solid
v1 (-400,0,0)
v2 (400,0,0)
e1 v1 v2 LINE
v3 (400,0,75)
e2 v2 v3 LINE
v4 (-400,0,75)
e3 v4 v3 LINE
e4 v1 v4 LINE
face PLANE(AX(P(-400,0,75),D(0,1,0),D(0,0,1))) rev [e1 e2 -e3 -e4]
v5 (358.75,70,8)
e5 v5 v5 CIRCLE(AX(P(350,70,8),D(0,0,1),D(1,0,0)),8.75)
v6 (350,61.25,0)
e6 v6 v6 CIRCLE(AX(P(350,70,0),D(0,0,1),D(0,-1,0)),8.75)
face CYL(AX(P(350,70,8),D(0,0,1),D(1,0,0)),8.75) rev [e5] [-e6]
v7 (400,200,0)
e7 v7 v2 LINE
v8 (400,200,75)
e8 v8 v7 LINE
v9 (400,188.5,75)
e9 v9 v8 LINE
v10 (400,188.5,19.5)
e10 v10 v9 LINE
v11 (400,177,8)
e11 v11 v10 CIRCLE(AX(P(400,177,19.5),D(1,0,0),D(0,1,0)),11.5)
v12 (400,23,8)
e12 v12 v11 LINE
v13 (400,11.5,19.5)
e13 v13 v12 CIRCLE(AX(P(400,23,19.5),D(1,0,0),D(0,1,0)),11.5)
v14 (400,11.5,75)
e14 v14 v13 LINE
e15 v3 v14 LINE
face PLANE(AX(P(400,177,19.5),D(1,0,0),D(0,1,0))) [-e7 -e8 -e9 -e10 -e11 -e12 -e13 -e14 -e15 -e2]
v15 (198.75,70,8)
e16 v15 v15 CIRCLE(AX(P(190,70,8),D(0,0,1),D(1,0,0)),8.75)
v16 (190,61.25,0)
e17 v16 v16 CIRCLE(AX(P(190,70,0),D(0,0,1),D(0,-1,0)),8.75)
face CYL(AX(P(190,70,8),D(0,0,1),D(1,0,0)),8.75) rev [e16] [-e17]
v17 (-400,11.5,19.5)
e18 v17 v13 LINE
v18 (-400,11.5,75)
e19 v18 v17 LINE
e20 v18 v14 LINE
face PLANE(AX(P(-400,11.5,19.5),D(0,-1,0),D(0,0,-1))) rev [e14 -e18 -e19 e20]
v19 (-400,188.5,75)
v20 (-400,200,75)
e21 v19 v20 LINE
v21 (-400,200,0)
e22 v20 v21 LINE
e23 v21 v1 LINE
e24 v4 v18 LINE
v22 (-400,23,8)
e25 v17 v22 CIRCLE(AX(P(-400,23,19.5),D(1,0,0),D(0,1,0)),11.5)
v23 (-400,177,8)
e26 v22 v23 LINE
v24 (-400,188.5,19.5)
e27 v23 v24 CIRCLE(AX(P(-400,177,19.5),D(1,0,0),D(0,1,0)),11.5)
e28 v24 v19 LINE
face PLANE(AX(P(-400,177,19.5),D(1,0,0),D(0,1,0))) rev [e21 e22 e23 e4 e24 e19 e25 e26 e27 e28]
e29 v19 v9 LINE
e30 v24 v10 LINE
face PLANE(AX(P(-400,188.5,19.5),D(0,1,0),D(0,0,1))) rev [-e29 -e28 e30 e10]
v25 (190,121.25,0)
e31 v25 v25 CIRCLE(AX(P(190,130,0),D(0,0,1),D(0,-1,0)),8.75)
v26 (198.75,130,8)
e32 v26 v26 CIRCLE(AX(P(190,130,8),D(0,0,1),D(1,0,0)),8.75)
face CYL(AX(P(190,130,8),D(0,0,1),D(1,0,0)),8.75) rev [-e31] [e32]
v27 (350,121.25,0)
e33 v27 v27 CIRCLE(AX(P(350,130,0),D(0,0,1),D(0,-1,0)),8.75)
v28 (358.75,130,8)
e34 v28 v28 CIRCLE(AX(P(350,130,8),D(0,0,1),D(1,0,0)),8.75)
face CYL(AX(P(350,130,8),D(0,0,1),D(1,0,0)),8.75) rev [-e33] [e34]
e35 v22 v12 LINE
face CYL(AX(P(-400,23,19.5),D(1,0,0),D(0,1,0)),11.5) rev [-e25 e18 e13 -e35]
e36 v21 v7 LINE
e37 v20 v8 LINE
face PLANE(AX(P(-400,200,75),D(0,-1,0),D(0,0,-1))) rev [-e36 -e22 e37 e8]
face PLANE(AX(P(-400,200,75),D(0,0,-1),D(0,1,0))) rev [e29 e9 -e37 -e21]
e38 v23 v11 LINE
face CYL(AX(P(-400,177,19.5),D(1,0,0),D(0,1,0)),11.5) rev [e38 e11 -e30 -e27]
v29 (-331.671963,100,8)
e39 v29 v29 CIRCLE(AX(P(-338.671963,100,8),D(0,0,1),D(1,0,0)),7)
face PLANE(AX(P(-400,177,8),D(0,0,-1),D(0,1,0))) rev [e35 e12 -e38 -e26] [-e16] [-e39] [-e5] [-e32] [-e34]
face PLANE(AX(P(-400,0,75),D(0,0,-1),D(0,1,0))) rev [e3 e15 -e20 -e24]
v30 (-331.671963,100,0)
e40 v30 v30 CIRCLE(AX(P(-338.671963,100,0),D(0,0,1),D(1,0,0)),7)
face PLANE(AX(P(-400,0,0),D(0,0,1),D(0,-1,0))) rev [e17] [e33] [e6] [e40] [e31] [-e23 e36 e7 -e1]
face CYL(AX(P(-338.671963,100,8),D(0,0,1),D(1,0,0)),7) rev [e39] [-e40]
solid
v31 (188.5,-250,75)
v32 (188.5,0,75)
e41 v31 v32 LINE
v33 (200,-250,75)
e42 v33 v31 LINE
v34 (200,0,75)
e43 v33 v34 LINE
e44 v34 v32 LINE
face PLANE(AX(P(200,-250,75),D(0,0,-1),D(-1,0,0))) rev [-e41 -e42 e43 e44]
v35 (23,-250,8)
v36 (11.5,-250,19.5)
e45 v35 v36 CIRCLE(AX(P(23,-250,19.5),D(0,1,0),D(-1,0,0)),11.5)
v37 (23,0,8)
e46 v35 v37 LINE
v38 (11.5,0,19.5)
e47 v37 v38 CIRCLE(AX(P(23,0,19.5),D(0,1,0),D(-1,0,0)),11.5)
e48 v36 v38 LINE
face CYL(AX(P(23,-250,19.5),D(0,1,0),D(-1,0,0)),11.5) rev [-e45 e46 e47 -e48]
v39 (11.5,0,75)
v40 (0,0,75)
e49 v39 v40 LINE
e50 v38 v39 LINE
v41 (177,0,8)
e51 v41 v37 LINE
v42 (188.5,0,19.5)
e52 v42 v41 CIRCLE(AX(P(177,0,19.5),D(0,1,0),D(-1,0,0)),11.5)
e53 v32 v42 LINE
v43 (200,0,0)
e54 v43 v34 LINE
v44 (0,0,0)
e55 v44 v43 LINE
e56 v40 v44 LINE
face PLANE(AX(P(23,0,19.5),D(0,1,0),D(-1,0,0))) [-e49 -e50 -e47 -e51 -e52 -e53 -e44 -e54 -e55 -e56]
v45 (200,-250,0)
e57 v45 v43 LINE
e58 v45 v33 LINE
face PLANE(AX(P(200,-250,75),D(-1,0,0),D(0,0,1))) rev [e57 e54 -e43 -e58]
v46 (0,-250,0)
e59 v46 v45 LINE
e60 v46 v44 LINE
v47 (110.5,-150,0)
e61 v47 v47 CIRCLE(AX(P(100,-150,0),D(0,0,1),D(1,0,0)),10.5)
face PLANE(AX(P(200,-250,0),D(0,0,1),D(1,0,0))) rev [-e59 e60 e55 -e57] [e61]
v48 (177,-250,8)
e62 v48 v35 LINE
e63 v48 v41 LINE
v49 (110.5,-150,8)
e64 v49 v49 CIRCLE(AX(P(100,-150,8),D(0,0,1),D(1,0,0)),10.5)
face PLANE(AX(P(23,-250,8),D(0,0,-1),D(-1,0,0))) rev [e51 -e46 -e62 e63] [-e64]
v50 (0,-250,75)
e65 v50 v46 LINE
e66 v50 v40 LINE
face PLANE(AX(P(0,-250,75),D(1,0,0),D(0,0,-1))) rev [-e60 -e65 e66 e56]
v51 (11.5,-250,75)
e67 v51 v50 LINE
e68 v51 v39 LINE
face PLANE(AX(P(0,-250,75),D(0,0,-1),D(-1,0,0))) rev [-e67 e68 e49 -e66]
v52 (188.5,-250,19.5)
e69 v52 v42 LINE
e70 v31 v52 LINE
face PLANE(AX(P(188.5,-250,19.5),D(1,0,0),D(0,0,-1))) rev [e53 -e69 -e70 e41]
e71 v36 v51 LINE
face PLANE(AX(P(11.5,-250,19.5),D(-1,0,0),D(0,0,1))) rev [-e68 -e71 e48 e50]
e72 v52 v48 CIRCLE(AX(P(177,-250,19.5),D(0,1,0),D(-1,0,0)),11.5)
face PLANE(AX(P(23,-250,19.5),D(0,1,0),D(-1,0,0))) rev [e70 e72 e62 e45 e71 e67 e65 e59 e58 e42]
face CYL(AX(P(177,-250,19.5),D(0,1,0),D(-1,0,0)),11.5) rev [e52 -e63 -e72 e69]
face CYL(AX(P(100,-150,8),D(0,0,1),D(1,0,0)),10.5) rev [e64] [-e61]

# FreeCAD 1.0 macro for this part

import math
import FreeCAD as App
import Part
import Sketcher
from FreeCAD import Vector
Q = App.Units.Quantity


def add_polygon(sketch, points):
    """Adds a closed chain of lines whose ends are joined by coincident constraints."""
    first, n = sketch.GeometryCount, len(points)
    for a, b in zip(points, points[1:] + points[:1]):
        sketch.addGeometry(Part.LineSegment(App.Vector(*a, 0), App.Vector(*b, 0)), False)
    for i in range(n):
        sketch.addConstraint(Sketcher.Constraint("Coincident", first + i, 2, first + (i + 1) % n, 1))

doc = App.newDocument("Part")
body = doc.addObject("PartDesign::Body", "Body")

# Sketch on YZ plane
sketch1 = body.newObject("Sketcher::SketchObject", "Sketch")
sketch1.AttachmentSupport = (doc.getObject("YZ_Plane"), [""])
sketch1.MapMode = "FlatFace"
sketch1.AttachmentOffset = App.Placement(Vector(0, 0, 400), App.Rotation())
sketch1.addGeometry(Part.LineSegment(Vector(200, 0, 0), Vector(0, 0, 0)), False)
sketch1.addGeometry(Part.LineSegment(Vector(0, 0, 0), Vector(0, 75, 0)), False)
sketch1.addGeometry(Part.LineSegment(Vector(0, 75, 0), Vector(12, 75, 0)), False)
sketch1.addGeometry(Part.LineSegment(Vector(12, 75, 0), Vector(12, 20, 0)), False)
sketch1.addGeometry(Part.ArcOfCircle(Part.Circle(Vector(23, 19, 0), Vector(0, 0, 1), 11), math.radians(180), math.radians(270)), False)
sketch1.addGeometry(Part.LineSegment(Vector(23, 8, 0), Vector(177, 8, 0)), False)
sketch1.addGeometry(Part.ArcOfCircle(Part.Circle(Vector(177, 19, 0), Vector(0, 0, 1), 11), math.radians(-90), math.radians(0)), False)
sketch1.addGeometry(Part.LineSegment(Vector(188, 20, 0), Vector(188, 75, 0)), False)
sketch1.addGeometry(Part.LineSegment(Vector(188, 75, 0), Vector(200, 75, 0)), False)
sketch1.addGeometry(Part.LineSegment(Vector(200, 75, 0), Vector(200, 0, 0)), False)
sketch1.addConstraint(Sketcher.Constraint("Coincident", 0, 2, 1, 1))
sketch1.addConstraint(Sketcher.Constraint("Coincident", 1, 2, 2, 1))
sketch1.addConstraint(Sketcher.Constraint("Coincident", 2, 2, 3, 1))
sketch1.addConstraint(Sketcher.Constraint("Tangent", 3, 2, 4, 1))
sketch1.addConstraint(Sketcher.Constraint("Tangent", 4, 2, 5, 1))
sketch1.addConstraint(Sketcher.Constraint("Tangent", 5, 2, 6, 1))
sketch1.addConstraint(Sketcher.Constraint("Tangent", 6, 2, 7, 1))
sketch1.addConstraint(Sketcher.Constraint("Coincident", 7, 2, 8, 1))
sketch1.addConstraint(Sketcher.Constraint("Coincident", 8, 2, 9, 1))
sketch1.addConstraint(Sketcher.Constraint("Coincident", 9, 2, 0, 1))
sketch1.addConstraint(Sketcher.Constraint("Horizontal", 0))
sketch1.addConstraint(Sketcher.Constraint("Vertical", 1))
sketch1.addConstraint(Sketcher.Constraint("Horizontal", 2))
sketch1.addConstraint(Sketcher.Constraint("Vertical", 3))
sketch1.addConstraint(Sketcher.Constraint("Horizontal", 5))
sketch1.addConstraint(Sketcher.Constraint("Vertical", 7))
sketch1.addConstraint(Sketcher.Constraint("Horizontal", 8))
sketch1.addConstraint(Sketcher.Constraint("Vertical", 9))
sketch1.addConstraint(Sketcher.Constraint("Coincident", 0, 2, -1, 1))
sketch1.addConstraint(Sketcher.Constraint("Equal", 4, 6))
sketch1.addConstraint(Sketcher.Constraint("Horizontal", 2, 2, 7, 2))
sketch1.addConstraint(Sketcher.Constraint("Equal", 2, 8))
sketch1.addConstraint(Sketcher.Constraint("Radius", 4, 11.5))
sketch1.addConstraint(Sketcher.Constraint("DistanceX", 0, 2, 0, 1, 200.0))
sketch1.addConstraint(Sketcher.Constraint("DistanceX", 5, 1, 5, 2, 154.0))
sketch1.addConstraint(Sketcher.Constraint("DistanceY", 1, 1, 1, 2, 75.0))
sketch1.addConstraint(Sketcher.Constraint("DistanceY", 3, 2, 3, 1, 55.5))
pad1 = body.newObject("PartDesign::Pad", "Pad")
pad1.Profile = sketch1
pad1.Length = 800
pad1.Reversed = True

# Sketch on YZ plane
sketch2 = body.newObject("Sketcher::SketchObject", "Sketch001")
sketch2.AttachmentSupport = (doc.getObject("YZ_Plane"), [""])
sketch2.MapMode = "FlatFace"
sketch2.AttachmentOffset = App.Placement(Vector(0, 0, -338.671963), App.Rotation())
add_polygon(sketch2, [(100, 0), (100, 8), (93, 8), (93, 0)])  # lines 0-3
sketch2.addGeometry(Part.LineSegment(Vector(100, 8, 0), Vector(100, 0, 0)), True)  # axis
sketch2.addConstraint(Sketcher.Constraint("Vertical", 0))
sketch2.addConstraint(Sketcher.Constraint("Horizontal", 1))
sketch2.addConstraint(Sketcher.Constraint("Vertical", 2))
sketch2.addConstraint(Sketcher.Constraint("Horizontal", 3))
sketch2.addConstraint(Sketcher.Constraint("Vertical", 4))
sketch2.addConstraint(Sketcher.Constraint("Coincident", 4, 1, 0, 2))
sketch2.addConstraint(Sketcher.Constraint("PointOnObject", 2, 2, -1))
sketch2.addConstraint(Sketcher.Constraint("PointOnObject", 4, 2, -1))
sketch2.addConstraint(Sketcher.Constraint("DistanceX", 1, 2, 1, 1, 7.0))
sketch2.addConstraint(Sketcher.Constraint("DistanceY", 0, 1, 0, 2, 8.0))
sketch2.addConstraint(Sketcher.Constraint("DistanceX", -1, 1, 0, 2, 100.0))
groove = body.newObject("PartDesign::Groove", "Groove")
groove.Profile = sketch2
groove.ReferenceAxis = (sketch2, ["Axis0"])
groove.Angle = 360

# Sketch on YZ plane
sketch3 = body.newObject("Sketcher::SketchObject", "Sketch002")
sketch3.AttachmentSupport = (doc.getObject("YZ_Plane"), [""])
sketch3.MapMode = "FlatFace"
sketch3.AttachmentOffset = App.Placement(Vector(0, 0, 190), App.Rotation())
add_polygon(sketch3, [(130, -45), (130, 8), (121, 8), (121, -40)])  # lines 0-3
sketch3.addGeometry(Part.LineSegment(Vector(130, 8, 0), Vector(130, -45, 0)), True)  # axis
sketch3.addConstraint(Sketcher.Constraint("Vertical", 0))
sketch3.addConstraint(Sketcher.Constraint("Horizontal", 1))
sketch3.addConstraint(Sketcher.Constraint("Vertical", 2))
sketch3.addConstraint(Sketcher.Constraint("Vertical", 4))
sketch3.addConstraint(Sketcher.Constraint("Coincident", 4, 1, 0, 2))
sketch3.addConstraint(Sketcher.Constraint("Equal", 0, 4))
sketch3.addConstraint(Sketcher.Constraint("Angle", 3, Q("-31 deg")))
sketch3.addConstraint(Sketcher.Constraint("DistanceY", 2, 2, 2, 1, 47.5))
sketch3.addConstraint(Sketcher.Constraint("DistanceX", -1, 1, 0, 2, 130.0))
sketch3.addConstraint(Sketcher.Constraint("DistanceY", -1, 1, 0, 2, 8.0))
sketch3.addConstraint(Sketcher.Constraint("DistanceX", 1, 2, 1, 1, 8.75))
groove2 = body.newObject("PartDesign::Groove", "Groove001")
groove2.Profile = sketch3
groove2.ReferenceAxis = (sketch3, ["Axis0"])
groove2.Angle = 360
doc.recompute()

linearpattern = body.newObject("PartDesign::LinearPattern", "LinearPattern")
linearpattern.Originals = [groove2]
linearpattern.Direction = (doc.getObject("X_Axis"), [""])
linearpattern.Mode = "offset"
linearpattern.Offset = 160
linearpattern.Occurrences = 2
body.Tip = linearpattern
doc.recompute()

datumline = body.newObject("PartDesign::Line", "DatumLine")
datumline.Placement = App.Placement(Vector(0, 0, 0), App.Rotation(Vector(0, 0, 1), Vector(0.936329178, -0.351123442, 0)))
linearpattern2 = body.newObject("PartDesign::LinearPattern", "LinearPattern001")
linearpattern2.Originals = [groove2]
linearpattern2.Direction = (datumline, [""])
linearpattern2.Mode = "offset"
linearpattern2.Offset = 170.880075
linearpattern2.Occurrences = 2
body.Tip = linearpattern2
doc.recompute()

linearpattern3 = body.newObject("PartDesign::LinearPattern", "LinearPattern002")
linearpattern3.Originals = [groove2]
linearpattern3.Direction = (doc.getObject("Y_Axis"), [""])
linearpattern3.Mode = "offset"
linearpattern3.Offset = 60
linearpattern3.Occurrences = 2
linearpattern3.Reversed = True
body.Tip = linearpattern3
body2 = doc.addObject("PartDesign::Body", "Body001")

# Sketch on XZ plane
sketch4 = body2.newObject("Sketcher::SketchObject", "Sketch003")
sketch4.AttachmentSupport = (doc.getObject("XZ_Plane001"), [""])
sketch4.MapMode = "FlatFace"
sketch4.addGeometry(Part.LineSegment(Vector(0, 0, 0), Vector(200, 0, 0)), False)
sketch4.addGeometry(Part.LineSegment(Vector(200, 0, 0), Vector(200, 75, 0)), False)
sketch4.addGeometry(Part.LineSegment(Vector(200, 75, 0), Vector(188, 75, 0)), False)
sketch4.addGeometry(Part.LineSegment(Vector(188, 75, 0), Vector(188, 20, 0)), False)
sketch4.addGeometry(Part.ArcOfCircle(Part.Circle(Vector(177, 19, 0), Vector(0, 0, 1), 11), math.radians(-90), math.radians(0)), False)
sketch4.addGeometry(Part.LineSegment(Vector(177, 8, 0), Vector(23, 8, 0)), False)
sketch4.addGeometry(Part.ArcOfCircle(Part.Circle(Vector(23, 19, 0), Vector(0, 0, 1), 11), math.radians(180), math.radians(270)), False)
sketch4.addGeometry(Part.LineSegment(Vector(12, 20, 0), Vector(12, 75, 0)), False)
sketch4.addGeometry(Part.LineSegment(Vector(12, 75, 0), Vector(0, 75, 0)), False)
sketch4.addGeometry(Part.LineSegment(Vector(0, 75, 0), Vector(0, 0, 0)), False)
sketch4.addConstraint(Sketcher.Constraint("Coincident", 0, 2, 1, 1))
sketch4.addConstraint(Sketcher.Constraint("Coincident", 1, 2, 2, 1))
sketch4.addConstraint(Sketcher.Constraint("Coincident", 2, 2, 3, 1))
sketch4.addConstraint(Sketcher.Constraint("Tangent", 3, 2, 4, 2))
sketch4.addConstraint(Sketcher.Constraint("Tangent", 4, 1, 5, 1))
sketch4.addConstraint(Sketcher.Constraint("Tangent", 5, 2, 6, 2))
sketch4.addConstraint(Sketcher.Constraint("Tangent", 6, 1, 7, 1))
sketch4.addConstraint(Sketcher.Constraint("Coincident", 7, 2, 8, 1))
sketch4.addConstraint(Sketcher.Constraint("Coincident", 8, 2, 9, 1))
sketch4.addConstraint(Sketcher.Constraint("Coincident", 9, 2, 0, 1))
sketch4.addConstraint(Sketcher.Constraint("Horizontal", 0))
sketch4.addConstraint(Sketcher.Constraint("Vertical", 1))
sketch4.addConstraint(Sketcher.Constraint("Horizontal", 2))
sketch4.addConstraint(Sketcher.Constraint("Vertical", 3))
sketch4.addConstraint(Sketcher.Constraint("Horizontal", 5))
sketch4.addConstraint(Sketcher.Constraint("Vertical", 7))
sketch4.addConstraint(Sketcher.Constraint("Horizontal", 8))
sketch4.addConstraint(Sketcher.Constraint("Vertical", 9))
sketch4.addConstraint(Sketcher.Constraint("Coincident", 9, 2, -1, 1))
sketch4.addConstraint(Sketcher.Constraint("Equal", 4, 6))
sketch4.addConstraint(Sketcher.Constraint("Horizontal", 2, 2, 7, 2))
sketch4.addConstraint(Sketcher.Constraint("Equal", 2, 8))
sketch4.addConstraint(Sketcher.Constraint("Radius", 4, 11.5))
sketch4.addConstraint(Sketcher.Constraint("DistanceX", 0, 1, 0, 2, 200.0))
sketch4.addConstraint(Sketcher.Constraint("DistanceX", 5, 2, 5, 1, 154.0))
sketch4.addConstraint(Sketcher.Constraint("DistanceY", 1, 1, 1, 2, 75.0))
sketch4.addConstraint(Sketcher.Constraint("DistanceY", 3, 2, 3, 1, 55.5))
pad2 = body2.newObject("PartDesign::Pad", "Pad001")
pad2.Profile = sketch4
pad2.Length = 250

# Sketch on YZ plane
sketch5 = body2.newObject("Sketcher::SketchObject", "Sketch004")
sketch5.AttachmentSupport = (doc.getObject("YZ_Plane001"), [""])
sketch5.MapMode = "FlatFace"
sketch5.AttachmentOffset = App.Placement(Vector(0, 0, 100), App.Rotation())
add_polygon(sketch5, [(-150, 0), (-150, 8), (-160, 8), (-160, 0)])  # lines 0-3
sketch5.addGeometry(Part.LineSegment(Vector(-150, 8, 0), Vector(-150, 0, 0)), True)  # axis
sketch5.addConstraint(Sketcher.Constraint("Vertical", 0))
sketch5.addConstraint(Sketcher.Constraint("Horizontal", 1))
sketch5.addConstraint(Sketcher.Constraint("Vertical", 2))
sketch5.addConstraint(Sketcher.Constraint("Horizontal", 3))
sketch5.addConstraint(Sketcher.Constraint("Vertical", 4))
sketch5.addConstraint(Sketcher.Constraint("Coincident", 4, 1, 0, 2))
sketch5.addConstraint(Sketcher.Constraint("PointOnObject", 2, 2, -1))
sketch5.addConstraint(Sketcher.Constraint("PointOnObject", 4, 2, -1))
sketch5.addConstraint(Sketcher.Constraint("DistanceY", 0, 1, 0, 2, 8.0))
sketch5.addConstraint(Sketcher.Constraint("DistanceX", 1, 2, 1, 1, 10.5))
sketch5.addConstraint(Sketcher.Constraint("DistanceX", 0, 2, -1, 1, 150.0))
groove3 = body2.newObject("PartDesign::Groove", "Groove002")
groove3.Profile = sketch5
groove3.ReferenceAxis = (sketch5, ["Axis0"])
groove3.Angle = 360

doc.recompute()
